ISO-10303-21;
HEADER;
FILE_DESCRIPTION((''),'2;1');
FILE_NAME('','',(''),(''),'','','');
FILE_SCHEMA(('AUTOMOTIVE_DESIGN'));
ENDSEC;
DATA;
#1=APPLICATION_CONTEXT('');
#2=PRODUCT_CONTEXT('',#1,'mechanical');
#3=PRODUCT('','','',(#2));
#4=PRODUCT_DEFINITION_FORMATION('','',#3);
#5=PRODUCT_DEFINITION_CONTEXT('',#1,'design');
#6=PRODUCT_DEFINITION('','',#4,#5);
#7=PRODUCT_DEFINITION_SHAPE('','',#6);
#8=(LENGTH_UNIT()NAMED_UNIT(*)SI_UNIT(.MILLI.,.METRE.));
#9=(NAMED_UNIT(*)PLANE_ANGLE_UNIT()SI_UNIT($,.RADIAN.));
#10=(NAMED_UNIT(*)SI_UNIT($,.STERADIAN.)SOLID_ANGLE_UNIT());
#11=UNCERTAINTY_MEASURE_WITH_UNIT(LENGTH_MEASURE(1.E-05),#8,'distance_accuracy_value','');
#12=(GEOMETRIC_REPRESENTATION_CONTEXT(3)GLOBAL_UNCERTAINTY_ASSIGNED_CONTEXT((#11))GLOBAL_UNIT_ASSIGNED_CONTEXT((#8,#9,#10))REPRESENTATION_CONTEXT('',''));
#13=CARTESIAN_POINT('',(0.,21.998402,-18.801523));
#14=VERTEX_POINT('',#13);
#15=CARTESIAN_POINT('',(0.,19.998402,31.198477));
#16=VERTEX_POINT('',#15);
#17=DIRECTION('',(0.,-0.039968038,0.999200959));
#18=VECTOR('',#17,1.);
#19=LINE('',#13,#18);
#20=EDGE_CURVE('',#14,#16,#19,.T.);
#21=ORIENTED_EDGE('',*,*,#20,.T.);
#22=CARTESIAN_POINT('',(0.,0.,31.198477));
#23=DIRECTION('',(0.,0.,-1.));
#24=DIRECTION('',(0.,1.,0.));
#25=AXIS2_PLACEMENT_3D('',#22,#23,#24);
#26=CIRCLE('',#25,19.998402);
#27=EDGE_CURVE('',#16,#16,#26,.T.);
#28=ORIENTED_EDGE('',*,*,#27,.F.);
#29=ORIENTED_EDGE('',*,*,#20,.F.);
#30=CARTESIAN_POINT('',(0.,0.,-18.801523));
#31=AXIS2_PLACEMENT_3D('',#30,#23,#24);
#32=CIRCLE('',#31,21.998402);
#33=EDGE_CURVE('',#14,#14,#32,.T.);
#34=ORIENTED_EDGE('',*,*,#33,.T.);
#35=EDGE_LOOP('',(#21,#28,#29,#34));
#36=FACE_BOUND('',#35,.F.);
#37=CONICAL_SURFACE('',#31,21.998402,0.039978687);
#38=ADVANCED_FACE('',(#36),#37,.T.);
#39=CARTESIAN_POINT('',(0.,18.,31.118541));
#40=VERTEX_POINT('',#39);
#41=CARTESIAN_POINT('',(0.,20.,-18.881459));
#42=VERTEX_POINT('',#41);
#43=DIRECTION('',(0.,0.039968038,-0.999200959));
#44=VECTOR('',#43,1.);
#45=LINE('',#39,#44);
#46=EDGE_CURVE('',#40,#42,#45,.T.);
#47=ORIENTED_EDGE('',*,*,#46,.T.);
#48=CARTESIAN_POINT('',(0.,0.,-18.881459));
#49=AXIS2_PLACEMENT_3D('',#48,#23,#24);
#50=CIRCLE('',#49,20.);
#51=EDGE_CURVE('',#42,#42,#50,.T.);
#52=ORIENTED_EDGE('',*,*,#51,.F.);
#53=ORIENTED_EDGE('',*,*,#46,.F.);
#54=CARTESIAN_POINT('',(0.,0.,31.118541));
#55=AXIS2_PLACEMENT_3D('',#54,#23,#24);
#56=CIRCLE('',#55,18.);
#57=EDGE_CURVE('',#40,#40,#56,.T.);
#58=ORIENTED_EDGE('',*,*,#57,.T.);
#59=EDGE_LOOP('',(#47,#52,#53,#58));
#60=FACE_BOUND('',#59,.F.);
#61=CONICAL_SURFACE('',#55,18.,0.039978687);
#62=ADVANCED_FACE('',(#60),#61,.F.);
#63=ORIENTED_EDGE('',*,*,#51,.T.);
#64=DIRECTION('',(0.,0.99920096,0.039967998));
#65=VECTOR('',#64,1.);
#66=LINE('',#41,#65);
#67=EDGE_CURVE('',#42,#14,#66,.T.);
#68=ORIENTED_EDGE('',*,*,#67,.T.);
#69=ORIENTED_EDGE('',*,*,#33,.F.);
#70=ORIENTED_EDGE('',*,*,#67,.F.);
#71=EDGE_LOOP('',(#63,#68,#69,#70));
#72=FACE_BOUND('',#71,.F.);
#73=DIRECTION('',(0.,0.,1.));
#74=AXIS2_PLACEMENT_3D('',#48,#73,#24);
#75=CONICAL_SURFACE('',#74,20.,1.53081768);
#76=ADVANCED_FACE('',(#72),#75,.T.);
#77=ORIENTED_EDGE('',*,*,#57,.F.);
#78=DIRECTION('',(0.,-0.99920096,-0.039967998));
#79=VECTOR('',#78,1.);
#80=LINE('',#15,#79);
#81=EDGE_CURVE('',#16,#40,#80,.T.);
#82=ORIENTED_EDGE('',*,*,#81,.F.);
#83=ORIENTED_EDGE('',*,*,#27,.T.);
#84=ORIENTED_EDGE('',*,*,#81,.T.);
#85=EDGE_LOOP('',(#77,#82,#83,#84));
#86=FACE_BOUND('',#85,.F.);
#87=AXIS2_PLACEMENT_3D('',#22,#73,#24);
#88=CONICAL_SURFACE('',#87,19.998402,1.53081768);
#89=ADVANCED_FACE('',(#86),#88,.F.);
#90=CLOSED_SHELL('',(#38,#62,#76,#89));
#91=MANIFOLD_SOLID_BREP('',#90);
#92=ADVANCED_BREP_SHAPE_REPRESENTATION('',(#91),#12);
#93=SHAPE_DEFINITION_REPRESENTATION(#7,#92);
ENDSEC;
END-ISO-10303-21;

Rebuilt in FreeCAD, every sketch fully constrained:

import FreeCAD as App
import Part
import Sketcher
Q = App.Units.Quantity


def add_polygon(sketch, points):
    """Adds a closed chain of lines whose ends are joined by coincident constraints."""
    first, n = sketch.GeometryCount, len(points)
    for a, b in zip(points, points[1:] + points[:1]):
        sketch.addGeometry(Part.LineSegment(App.Vector(*a, 0), App.Vector(*b, 0)), False)
    for i in range(n):
        sketch.addConstraint(Sketcher.Constraint("Coincident", first + i, 2, first + (i + 1) % n, 1))

doc = App.newDocument("Part")
body = doc.addObject("PartDesign::Body", "Body")

sketch1 = body.newObject("Sketcher::SketchObject", "Sketch")
sketch1.AttachmentSupport = (doc.getObject("YZ_Plane"), [""])
sketch1.MapMode = "FlatFace"
add_polygon(sketch1, [(20, 31.2), (18, 31.1), (20, -18.9), (22, -18.8)])
sketch1.addConstraint([
    Sketcher.Constraint("Perpendicular", 0, 1),
    Sketcher.Constraint("Perpendicular", 1, 2),
    Sketcher.Constraint("Perpendicular", 2, 3),
    Sketcher.Constraint("Distance", 0, Q("2 mm")),
    Sketcher.Constraint("DistanceX", -1, 1, 0, 2, Q("18 mm")),
    Sketcher.Constraint("DistanceX", -1, 1, 1, 2, Q("20 mm")),
    Sketcher.Constraint("DistanceY", 1, 2, 0, 2, Q("50 mm")),
    Sketcher.Constraint("DistanceY", -1, 1, 0, 2, Q("31.118541 mm")),
])
revolution = body.newObject("PartDesign::Revolution", "Revolution")
revolution.Profile = sketch1
revolution.ReferenceAxis = (sketch1, ["V_Axis"])
revolution.Angle = 360

doc.recompute()
